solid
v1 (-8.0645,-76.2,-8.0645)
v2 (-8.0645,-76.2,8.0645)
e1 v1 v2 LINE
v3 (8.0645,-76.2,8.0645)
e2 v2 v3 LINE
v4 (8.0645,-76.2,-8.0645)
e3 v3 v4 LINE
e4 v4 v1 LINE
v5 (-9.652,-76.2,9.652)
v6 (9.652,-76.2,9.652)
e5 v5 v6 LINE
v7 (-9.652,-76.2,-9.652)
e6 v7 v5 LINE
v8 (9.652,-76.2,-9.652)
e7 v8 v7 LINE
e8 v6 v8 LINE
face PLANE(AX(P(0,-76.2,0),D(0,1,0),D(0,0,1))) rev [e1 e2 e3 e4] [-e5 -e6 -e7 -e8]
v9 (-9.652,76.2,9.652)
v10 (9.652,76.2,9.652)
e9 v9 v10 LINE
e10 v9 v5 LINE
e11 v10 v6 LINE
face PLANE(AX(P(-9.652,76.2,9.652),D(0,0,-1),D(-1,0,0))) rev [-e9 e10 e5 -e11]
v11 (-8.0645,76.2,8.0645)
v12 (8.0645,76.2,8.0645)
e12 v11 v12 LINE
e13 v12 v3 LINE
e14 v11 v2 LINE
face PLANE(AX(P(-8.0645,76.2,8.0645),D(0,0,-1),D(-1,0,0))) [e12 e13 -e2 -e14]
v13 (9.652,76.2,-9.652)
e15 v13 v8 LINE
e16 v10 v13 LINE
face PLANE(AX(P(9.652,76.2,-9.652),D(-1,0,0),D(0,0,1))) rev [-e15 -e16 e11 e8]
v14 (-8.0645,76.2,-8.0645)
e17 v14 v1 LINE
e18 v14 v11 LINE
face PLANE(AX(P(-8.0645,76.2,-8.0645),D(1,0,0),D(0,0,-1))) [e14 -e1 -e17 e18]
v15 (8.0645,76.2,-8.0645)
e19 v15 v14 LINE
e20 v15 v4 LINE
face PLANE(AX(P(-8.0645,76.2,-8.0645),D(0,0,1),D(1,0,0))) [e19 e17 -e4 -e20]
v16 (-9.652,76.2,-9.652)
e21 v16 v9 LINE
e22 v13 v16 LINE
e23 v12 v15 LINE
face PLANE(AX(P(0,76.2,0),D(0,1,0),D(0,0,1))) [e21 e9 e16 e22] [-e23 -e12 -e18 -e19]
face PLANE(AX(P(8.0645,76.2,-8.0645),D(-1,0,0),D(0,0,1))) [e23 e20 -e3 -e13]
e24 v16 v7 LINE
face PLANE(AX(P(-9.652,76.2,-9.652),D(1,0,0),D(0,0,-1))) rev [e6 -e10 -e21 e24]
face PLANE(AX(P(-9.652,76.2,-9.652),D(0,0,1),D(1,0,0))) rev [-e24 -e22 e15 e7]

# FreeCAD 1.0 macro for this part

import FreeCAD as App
import Part
import Sketcher

V = App.Vector
Q = App.Units.Quantity


def add_polygon(sketch, points):
    """Adds a closed chain of lines whose ends are joined by coincident constraints."""
    first, n = sketch.GeometryCount, len(points)
    for a, b in zip(points, points[1:] + points[:1]):
        sketch.addGeometry(Part.LineSegment(App.Vector(*a, 0), App.Vector(*b, 0)), False)
    for i in range(n):
        sketch.addConstraint(Sketcher.Constraint("Coincident", first + i, 2, first + (i + 1) % n, 1))

doc = App.newDocument("Part")
params = doc.addObject("Spreadsheet::Sheet", "Params")
for row, (alias, value) in enumerate([
    ("sketch1_width", "0.76 in"),
    ("sketch1_width2", "0.635 in"),
    ("pad1_length", "6 in"),
], start=1):
    params.set(f"A{row}", alias)
    params.set(f"B{row}", "=" + value)
    params.setAlias(f"B{row}", alias)

body = doc.addObject("PartDesign::Body", "Body")

# Sketch on XZ plane
sketch1 = body.newObject("Sketcher::SketchObject", "Sketch")
sketch1.AttachmentSupport = (doc.getObject("XZ_Plane"), [""])
sketch1.MapMode = "FlatFace"
add_polygon(sketch1, [(-10, -10), (-10, 10), (10, 10), (10, -10)])  # lines 0-3
add_polygon(sketch1, [(8, 8), (-8, 8), (-8, -8), (8, -8)])  # lines 4-7
sketch1.addConstraint(Sketcher.Constraint("Vertical", 0))
sketch1.addConstraint(Sketcher.Constraint("Horizontal", 1))
sketch1.addConstraint(Sketcher.Constraint("Vertical", 2))
sketch1.addConstraint(Sketcher.Constraint("Horizontal", 3))
sketch1.addConstraint(Sketcher.Constraint("Horizontal", 4))
sketch1.addConstraint(Sketcher.Constraint("Vertical", 5))
sketch1.addConstraint(Sketcher.Constraint("Horizontal", 6))
sketch1.addConstraint(Sketcher.Constraint("Vertical", 7))
sketch1.addConstraint(Sketcher.Constraint("Symmetric", 0, 2, 2, 2, -1, 1))
sketch1.addConstraint(Sketcher.Constraint("Symmetric", 4, 2, 6, 2, -1, 1))
sketch1.addConstraint(Sketcher.Constraint("Equal", 3, 0))
sketch1.addConstraint(Sketcher.Constraint("Equal", 6, 5))
sketch1.addConstraint(Sketcher.Constraint("DistanceX", 1, 1, 1, 2, Q("0.76 in")))
sketch1.addConstraint(Sketcher.Constraint("DistanceX", 4, 2, 4, 1, Q("0.635 in")))
sketch1.setExpression("Constraints[20]", "Params.sketch1_width")
sketch1.setExpression("Constraints[21]", "Params.sketch1_width2")
pad1 = body.newObject("PartDesign::Pad", "Pad")
pad1.Profile = sketch1
pad1.setExpression("Length", "Params.pad1_length")
pad1.Midplane = True

doc.recompute()
